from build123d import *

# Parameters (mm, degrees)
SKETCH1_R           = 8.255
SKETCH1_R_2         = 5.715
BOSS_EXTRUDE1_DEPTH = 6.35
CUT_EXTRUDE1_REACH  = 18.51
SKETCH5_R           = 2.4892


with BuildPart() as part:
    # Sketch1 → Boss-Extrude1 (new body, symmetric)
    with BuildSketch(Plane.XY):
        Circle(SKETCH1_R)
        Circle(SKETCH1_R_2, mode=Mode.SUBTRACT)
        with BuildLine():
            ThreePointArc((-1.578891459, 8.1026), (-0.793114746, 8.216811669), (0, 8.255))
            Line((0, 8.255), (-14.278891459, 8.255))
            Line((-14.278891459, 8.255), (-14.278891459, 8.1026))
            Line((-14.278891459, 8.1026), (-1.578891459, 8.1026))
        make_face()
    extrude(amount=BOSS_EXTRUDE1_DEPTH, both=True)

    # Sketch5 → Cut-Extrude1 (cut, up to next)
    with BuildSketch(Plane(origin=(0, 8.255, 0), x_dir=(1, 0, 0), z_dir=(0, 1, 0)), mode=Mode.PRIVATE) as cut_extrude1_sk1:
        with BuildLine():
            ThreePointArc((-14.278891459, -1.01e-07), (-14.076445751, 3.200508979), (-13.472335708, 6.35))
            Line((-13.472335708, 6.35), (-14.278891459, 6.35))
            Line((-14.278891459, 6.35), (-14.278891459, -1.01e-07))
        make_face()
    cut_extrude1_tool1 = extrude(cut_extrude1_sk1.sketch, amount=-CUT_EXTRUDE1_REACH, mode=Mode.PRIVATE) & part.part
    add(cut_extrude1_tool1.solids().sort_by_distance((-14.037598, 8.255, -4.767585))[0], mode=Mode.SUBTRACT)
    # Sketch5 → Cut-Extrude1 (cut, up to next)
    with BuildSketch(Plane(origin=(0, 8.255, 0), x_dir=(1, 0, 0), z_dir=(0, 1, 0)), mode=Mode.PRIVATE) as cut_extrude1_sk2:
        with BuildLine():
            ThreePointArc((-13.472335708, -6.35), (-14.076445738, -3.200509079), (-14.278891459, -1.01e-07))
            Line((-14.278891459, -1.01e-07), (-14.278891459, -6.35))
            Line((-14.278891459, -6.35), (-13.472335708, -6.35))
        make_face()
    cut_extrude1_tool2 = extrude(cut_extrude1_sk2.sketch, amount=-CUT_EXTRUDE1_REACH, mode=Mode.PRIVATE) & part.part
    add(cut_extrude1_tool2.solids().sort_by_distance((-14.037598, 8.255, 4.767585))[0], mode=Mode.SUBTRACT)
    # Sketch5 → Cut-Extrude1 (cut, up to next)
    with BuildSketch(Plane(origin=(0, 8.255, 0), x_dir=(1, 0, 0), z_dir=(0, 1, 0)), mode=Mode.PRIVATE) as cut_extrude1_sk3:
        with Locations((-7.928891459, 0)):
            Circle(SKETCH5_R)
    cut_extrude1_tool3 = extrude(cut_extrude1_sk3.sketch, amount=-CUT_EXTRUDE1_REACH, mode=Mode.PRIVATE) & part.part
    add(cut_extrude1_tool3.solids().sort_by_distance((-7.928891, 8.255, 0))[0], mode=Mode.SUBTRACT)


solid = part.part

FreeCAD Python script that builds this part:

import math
import FreeCAD as App
import Part
import Sketcher
from FreeCAD import Vector
Q = App.Units.Quantity

doc = App.newDocument("Part")
body = doc.addObject("PartDesign::Body", "Body")

sketch1 = body.newObject("Sketcher::SketchObject", "Sketch")
sketch1.AttachmentSupport = (doc.getObject("XY_Plane"), [""])
sketch1.MapMode = "FlatFace"
sketch1.addGeometry([
    Part.LineSegment(Vector(0, 8.26, 0), Vector(-14.28, 8.26, 0)),
    Part.LineSegment(Vector(-14.28, 8.26, 0), Vector(-14.28, 8.1, 0)),
    Part.LineSegment(Vector(-14.28, 8.1, 0), Vector(-1.58, 8.1, 0)),
    Part.ArcOfCircle(Part.Circle(Vector(0, 0, 0), Vector(0, 0, 1), 8.26), math.radians(101), math.radians(450)),
    Part.Circle(Vector(0, 0, 0), Vector(0, 0, 1), 5.71),
], False)
sketch1.addConstraint([
    Sketcher.Constraint("Coincident", 0, 2, 1, 1),
    Sketcher.Constraint("Coincident", 1, 2, 2, 1),
    Sketcher.Constraint("Coincident", 2, 2, 3, 1),
    Sketcher.Constraint("Tangent", 3, 2, 0, 1),
    Sketcher.Constraint("Horizontal", 0),
    Sketcher.Constraint("Vertical", 1),
    Sketcher.Constraint("Horizontal", 2),
    Sketcher.Constraint("Coincident", 3, 3, -1, 1),
    Sketcher.Constraint("Coincident", 4, 3, -1, 1),
    Sketcher.Constraint("Diameter", 4, Q("0.45 in")),
    Sketcher.Constraint("DistanceX", 2, 1, 2, 2, Q("0.5 in")),
    Sketcher.Constraint("Radius", 3, Q("0.325 in")),
    Sketcher.Constraint("DistanceY", 1, 2, 1, 1, Q("0.006 in")),
])
pad1 = body.newObject("PartDesign::Pad", "Pad")
pad1.Profile = sketch1
pad1.Length = Q("0.5 in")
pad1.Midplane = True

sketch2 = body.newObject("Sketcher::SketchObject", "Sketch001")
sketch2.AttachmentSupport = (doc.getObject("XZ_Plane"), [""])
sketch2.MapMode = "FlatFace"
sketch2.AttachmentOffset = App.Placement(Vector(0, 0, -0.325 * 25.4), App.Rotation())
sketch2.addGeometry([
    Part.ArcOfCircle(Part.Circle(Vector(11.1, 0, 0), Vector(0, 0, 1), 25.4), math.radians(180), math.radians(194.48)),
    Part.LineSegment(Vector(-13.5, -6.3, 0), Vector(-14.3, -6.3, 0)),
    Part.LineSegment(Vector(-14.3, -6.3, 0), Vector(-14.3, 0, 0)),
], False)
sketch2.addConstraint([
    Sketcher.Constraint("Coincident", 0, 2, 1, 1),
    Sketcher.Constraint("Coincident", 1, 2, 2, 1),
    Sketcher.Constraint("Tangent", 2, 2, 0, 1),
    Sketcher.Constraint("Horizontal", 1),
    Sketcher.Constraint("Vertical", 2),
    Sketcher.Constraint("PointOnObject", 0, 3, -1),
    Sketcher.Constraint("Radius", 0, Q("1 in")),
    Sketcher.Constraint("DistanceY", 2, 1, 2, 2, Q("0.25 in")),
    Sketcher.Constraint("DistanceX", -1, 1, 0, 3, Q("11.121109 mm")),
])
pocket1 = body.newObject("PartDesign::Pocket", "Pocket")
pocket1.Profile = sketch2
pocket1.Type = "UpToFirst"
pocket1.Reversed = True

sketch3 = body.newObject("Sketcher::SketchObject", "Sketch002")
sketch3.AttachmentSupport = (doc.getObject("XZ_Plane"), [""])
sketch3.MapMode = "FlatFace"
sketch3.AttachmentOffset = App.Placement(Vector(0, 0, -0.325 * 25.4), App.Rotation())
sketch3.addGeometry([
    Part.ArcOfCircle(Part.Circle(Vector(11.1, 0, 0), Vector(0, 0, 1), 25.4), math.radians(165.52), math.radians(180)),
    Part.LineSegment(Vector(-14.3, 0, 0), Vector(-14.3, 6.3, 0)),
    Part.LineSegment(Vector(-14.3, 6.3, 0), Vector(-13.5, 6.3, 0)),
], False)
sketch3.addConstraint([
    Sketcher.Constraint("Tangent", 0, 2, 1, 1),
    Sketcher.Constraint("Coincident", 1, 2, 2, 1),
    Sketcher.Constraint("Coincident", 2, 2, 0, 1),
    Sketcher.Constraint("Vertical", 1),
    Sketcher.Constraint("Horizontal", 2),
    Sketcher.Constraint("PointOnObject", 0, 3, -1),
    Sketcher.Constraint("Radius", 0, Q("1 in")),
    Sketcher.Constraint("DistanceY", 1, 1, 1, 2, Q("0.25 in")),
    Sketcher.Constraint("DistanceX", -1, 1, 0, 3, Q("11.121109 mm")),
])
pocket2 = body.newObject("PartDesign::Pocket", "Pocket001")
pocket2.Profile = sketch3
pocket2.Type = "UpToFirst"
pocket2.Reversed = True

sketch4 = body.newObject("Sketcher::SketchObject", "Sketch003")
sketch4.AttachmentSupport = (doc.getObject("XZ_Plane"), [""])
sketch4.MapMode = "FlatFace"
sketch4.AttachmentOffset = App.Placement(Vector(0, 0, -0.325 * 25.4), App.Rotation())
sketch4.addGeometry(Part.Circle(Vector(-7.9, 0, 0), Vector(0, 0, 1), 2.5), False)
sketch4.addConstraint([
    Sketcher.Constraint("PointOnObject", 0, 3, -1),
    Sketcher.Constraint("Diameter", 0, Q("0.196 in")),
    Sketcher.Constraint("DistanceX", 0, 3, -1, 1, Q("7.928891 mm")),
])
pocket3 = body.newObject("PartDesign::Pocket", "Pocket002")
pocket3.Profile = sketch4
pocket3.Type = "UpToFirst"
pocket3.Reversed = True

doc.recompute()
